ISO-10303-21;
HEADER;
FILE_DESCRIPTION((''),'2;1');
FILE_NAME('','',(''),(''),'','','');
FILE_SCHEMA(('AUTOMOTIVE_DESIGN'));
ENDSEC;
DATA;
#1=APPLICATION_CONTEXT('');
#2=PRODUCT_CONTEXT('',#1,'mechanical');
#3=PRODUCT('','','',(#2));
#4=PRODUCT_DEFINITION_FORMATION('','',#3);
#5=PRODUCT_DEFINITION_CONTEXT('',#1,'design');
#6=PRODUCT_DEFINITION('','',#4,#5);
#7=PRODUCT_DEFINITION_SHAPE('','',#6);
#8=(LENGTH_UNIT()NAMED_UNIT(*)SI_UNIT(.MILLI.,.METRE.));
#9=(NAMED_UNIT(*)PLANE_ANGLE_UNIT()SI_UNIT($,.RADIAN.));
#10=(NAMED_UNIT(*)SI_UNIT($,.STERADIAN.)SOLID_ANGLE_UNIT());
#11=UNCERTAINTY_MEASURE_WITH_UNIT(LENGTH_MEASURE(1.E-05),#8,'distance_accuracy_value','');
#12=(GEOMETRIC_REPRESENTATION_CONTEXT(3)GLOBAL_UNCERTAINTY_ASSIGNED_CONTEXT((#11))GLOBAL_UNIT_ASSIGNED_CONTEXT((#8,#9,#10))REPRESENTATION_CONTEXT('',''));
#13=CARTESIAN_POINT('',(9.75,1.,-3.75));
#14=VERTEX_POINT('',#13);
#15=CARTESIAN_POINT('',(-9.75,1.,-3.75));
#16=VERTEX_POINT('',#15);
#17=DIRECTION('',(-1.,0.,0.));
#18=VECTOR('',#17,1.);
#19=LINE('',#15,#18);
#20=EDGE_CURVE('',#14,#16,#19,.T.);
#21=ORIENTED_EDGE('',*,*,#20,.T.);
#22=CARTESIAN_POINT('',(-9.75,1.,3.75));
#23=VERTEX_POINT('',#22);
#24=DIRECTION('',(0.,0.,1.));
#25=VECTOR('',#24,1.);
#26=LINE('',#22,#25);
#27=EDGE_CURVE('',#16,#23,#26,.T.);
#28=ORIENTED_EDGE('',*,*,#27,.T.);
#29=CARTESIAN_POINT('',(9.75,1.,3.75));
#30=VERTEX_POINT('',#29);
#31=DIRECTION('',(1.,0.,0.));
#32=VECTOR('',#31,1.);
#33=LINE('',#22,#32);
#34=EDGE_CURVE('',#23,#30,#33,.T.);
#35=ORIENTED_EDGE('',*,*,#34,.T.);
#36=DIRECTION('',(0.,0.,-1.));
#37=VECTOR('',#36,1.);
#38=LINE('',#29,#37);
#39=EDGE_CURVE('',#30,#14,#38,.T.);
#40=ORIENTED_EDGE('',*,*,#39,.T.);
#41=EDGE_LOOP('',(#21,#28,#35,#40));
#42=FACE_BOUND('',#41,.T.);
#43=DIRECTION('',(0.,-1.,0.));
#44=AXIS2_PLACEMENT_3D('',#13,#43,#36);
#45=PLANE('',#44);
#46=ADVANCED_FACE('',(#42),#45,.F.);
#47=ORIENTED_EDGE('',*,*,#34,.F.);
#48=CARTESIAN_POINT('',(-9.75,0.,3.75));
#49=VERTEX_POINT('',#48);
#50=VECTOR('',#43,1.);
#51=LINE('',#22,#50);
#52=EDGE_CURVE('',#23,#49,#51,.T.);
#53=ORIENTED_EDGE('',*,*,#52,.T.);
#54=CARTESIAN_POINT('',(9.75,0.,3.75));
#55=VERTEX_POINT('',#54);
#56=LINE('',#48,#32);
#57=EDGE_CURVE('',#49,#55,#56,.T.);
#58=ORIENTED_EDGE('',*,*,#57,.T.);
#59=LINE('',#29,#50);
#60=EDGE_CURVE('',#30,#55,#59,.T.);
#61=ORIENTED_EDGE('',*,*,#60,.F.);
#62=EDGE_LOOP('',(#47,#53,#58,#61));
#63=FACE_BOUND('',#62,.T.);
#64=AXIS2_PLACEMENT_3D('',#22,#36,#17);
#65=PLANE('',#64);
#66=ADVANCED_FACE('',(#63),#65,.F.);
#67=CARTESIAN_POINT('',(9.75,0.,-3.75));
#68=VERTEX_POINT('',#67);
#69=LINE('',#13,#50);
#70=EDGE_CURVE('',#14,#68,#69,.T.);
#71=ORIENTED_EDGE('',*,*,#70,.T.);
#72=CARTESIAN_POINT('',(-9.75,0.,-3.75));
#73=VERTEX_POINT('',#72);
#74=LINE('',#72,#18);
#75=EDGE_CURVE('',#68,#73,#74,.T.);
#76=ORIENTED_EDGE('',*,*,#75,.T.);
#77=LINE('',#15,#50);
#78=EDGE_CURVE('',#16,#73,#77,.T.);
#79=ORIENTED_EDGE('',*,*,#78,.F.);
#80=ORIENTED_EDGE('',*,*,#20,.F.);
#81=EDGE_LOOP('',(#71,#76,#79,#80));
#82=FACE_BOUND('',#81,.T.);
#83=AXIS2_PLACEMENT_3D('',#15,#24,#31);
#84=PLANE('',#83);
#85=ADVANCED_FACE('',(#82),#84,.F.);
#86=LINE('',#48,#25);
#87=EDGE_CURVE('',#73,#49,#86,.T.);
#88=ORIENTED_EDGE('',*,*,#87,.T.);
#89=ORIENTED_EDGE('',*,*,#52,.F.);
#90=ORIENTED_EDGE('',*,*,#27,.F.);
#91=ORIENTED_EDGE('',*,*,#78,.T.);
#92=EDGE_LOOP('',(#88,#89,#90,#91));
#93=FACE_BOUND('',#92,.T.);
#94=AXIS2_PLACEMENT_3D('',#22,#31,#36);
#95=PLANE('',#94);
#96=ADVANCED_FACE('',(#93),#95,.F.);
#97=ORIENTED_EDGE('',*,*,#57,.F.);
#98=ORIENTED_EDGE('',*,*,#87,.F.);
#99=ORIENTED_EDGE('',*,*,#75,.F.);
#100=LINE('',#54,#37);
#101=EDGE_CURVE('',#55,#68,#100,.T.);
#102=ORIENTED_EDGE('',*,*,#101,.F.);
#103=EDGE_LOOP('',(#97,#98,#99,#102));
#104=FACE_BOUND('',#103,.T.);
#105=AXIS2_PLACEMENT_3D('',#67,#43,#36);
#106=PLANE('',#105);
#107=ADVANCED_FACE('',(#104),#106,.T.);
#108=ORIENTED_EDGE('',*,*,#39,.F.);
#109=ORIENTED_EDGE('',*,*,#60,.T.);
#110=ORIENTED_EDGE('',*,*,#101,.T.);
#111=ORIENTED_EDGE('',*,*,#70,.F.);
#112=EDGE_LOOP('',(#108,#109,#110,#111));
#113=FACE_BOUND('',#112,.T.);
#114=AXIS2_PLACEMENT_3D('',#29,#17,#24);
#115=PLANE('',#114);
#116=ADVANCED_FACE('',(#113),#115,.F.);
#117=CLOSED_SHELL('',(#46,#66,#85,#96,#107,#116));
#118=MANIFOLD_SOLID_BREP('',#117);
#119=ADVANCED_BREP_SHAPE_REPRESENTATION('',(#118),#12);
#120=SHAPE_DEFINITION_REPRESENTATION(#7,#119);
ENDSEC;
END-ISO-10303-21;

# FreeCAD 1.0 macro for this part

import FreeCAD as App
import Part
import Sketcher

doc = App.newDocument("Part")
body = doc.addObject("PartDesign::Body", "Body")

# Sketch on XZ plane
sketch1 = body.newObject("Sketcher::SketchObject", "Sketch")
sketch1.AttachmentSupport = (doc.getObject("XZ_Plane"), [""])
sketch1.MapMode = "FlatFace"
sketch1.addGeometry([
    Part.LineSegment(App.Vector(-10, -4, 0), App.Vector(-10, 4, 0)),
    Part.LineSegment(App.Vector(-10, 4, 0), App.Vector(10, 4, 0)),
    Part.LineSegment(App.Vector(10, 4, 0), App.Vector(10, -4, 0)),
    Part.LineSegment(App.Vector(10, -4, 0), App.Vector(-10, -4, 0)),
], False)
sketch1.addConstraint([
    Sketcher.Constraint("Coincident", 0, 2, 1, 1),
    Sketcher.Constraint("Coincident", 1, 2, 2, 1),
    Sketcher.Constraint("Coincident", 2, 2, 3, 1),
    Sketcher.Constraint("Coincident", 3, 2, 0, 1),
    Sketcher.Constraint("Vertical", 0),
    Sketcher.Constraint("Horizontal", 1),
    Sketcher.Constraint("Vertical", 2),
    Sketcher.Constraint("Horizontal", 3),
    Sketcher.Constraint("Symmetric", 0, 2, 2, 2, -1, 1),
    Sketcher.Constraint("DistanceX", 1, 1, 1, 2, 19.5),
    Sketcher.Constraint("DistanceY", 0, 1, 0, 2, 7.5),
])
pad1 = body.newObject("PartDesign::Pad", "Pad")
pad1.Profile = sketch1
pad1.Length = 1
pad1.Reversed = True

doc.recompute()
